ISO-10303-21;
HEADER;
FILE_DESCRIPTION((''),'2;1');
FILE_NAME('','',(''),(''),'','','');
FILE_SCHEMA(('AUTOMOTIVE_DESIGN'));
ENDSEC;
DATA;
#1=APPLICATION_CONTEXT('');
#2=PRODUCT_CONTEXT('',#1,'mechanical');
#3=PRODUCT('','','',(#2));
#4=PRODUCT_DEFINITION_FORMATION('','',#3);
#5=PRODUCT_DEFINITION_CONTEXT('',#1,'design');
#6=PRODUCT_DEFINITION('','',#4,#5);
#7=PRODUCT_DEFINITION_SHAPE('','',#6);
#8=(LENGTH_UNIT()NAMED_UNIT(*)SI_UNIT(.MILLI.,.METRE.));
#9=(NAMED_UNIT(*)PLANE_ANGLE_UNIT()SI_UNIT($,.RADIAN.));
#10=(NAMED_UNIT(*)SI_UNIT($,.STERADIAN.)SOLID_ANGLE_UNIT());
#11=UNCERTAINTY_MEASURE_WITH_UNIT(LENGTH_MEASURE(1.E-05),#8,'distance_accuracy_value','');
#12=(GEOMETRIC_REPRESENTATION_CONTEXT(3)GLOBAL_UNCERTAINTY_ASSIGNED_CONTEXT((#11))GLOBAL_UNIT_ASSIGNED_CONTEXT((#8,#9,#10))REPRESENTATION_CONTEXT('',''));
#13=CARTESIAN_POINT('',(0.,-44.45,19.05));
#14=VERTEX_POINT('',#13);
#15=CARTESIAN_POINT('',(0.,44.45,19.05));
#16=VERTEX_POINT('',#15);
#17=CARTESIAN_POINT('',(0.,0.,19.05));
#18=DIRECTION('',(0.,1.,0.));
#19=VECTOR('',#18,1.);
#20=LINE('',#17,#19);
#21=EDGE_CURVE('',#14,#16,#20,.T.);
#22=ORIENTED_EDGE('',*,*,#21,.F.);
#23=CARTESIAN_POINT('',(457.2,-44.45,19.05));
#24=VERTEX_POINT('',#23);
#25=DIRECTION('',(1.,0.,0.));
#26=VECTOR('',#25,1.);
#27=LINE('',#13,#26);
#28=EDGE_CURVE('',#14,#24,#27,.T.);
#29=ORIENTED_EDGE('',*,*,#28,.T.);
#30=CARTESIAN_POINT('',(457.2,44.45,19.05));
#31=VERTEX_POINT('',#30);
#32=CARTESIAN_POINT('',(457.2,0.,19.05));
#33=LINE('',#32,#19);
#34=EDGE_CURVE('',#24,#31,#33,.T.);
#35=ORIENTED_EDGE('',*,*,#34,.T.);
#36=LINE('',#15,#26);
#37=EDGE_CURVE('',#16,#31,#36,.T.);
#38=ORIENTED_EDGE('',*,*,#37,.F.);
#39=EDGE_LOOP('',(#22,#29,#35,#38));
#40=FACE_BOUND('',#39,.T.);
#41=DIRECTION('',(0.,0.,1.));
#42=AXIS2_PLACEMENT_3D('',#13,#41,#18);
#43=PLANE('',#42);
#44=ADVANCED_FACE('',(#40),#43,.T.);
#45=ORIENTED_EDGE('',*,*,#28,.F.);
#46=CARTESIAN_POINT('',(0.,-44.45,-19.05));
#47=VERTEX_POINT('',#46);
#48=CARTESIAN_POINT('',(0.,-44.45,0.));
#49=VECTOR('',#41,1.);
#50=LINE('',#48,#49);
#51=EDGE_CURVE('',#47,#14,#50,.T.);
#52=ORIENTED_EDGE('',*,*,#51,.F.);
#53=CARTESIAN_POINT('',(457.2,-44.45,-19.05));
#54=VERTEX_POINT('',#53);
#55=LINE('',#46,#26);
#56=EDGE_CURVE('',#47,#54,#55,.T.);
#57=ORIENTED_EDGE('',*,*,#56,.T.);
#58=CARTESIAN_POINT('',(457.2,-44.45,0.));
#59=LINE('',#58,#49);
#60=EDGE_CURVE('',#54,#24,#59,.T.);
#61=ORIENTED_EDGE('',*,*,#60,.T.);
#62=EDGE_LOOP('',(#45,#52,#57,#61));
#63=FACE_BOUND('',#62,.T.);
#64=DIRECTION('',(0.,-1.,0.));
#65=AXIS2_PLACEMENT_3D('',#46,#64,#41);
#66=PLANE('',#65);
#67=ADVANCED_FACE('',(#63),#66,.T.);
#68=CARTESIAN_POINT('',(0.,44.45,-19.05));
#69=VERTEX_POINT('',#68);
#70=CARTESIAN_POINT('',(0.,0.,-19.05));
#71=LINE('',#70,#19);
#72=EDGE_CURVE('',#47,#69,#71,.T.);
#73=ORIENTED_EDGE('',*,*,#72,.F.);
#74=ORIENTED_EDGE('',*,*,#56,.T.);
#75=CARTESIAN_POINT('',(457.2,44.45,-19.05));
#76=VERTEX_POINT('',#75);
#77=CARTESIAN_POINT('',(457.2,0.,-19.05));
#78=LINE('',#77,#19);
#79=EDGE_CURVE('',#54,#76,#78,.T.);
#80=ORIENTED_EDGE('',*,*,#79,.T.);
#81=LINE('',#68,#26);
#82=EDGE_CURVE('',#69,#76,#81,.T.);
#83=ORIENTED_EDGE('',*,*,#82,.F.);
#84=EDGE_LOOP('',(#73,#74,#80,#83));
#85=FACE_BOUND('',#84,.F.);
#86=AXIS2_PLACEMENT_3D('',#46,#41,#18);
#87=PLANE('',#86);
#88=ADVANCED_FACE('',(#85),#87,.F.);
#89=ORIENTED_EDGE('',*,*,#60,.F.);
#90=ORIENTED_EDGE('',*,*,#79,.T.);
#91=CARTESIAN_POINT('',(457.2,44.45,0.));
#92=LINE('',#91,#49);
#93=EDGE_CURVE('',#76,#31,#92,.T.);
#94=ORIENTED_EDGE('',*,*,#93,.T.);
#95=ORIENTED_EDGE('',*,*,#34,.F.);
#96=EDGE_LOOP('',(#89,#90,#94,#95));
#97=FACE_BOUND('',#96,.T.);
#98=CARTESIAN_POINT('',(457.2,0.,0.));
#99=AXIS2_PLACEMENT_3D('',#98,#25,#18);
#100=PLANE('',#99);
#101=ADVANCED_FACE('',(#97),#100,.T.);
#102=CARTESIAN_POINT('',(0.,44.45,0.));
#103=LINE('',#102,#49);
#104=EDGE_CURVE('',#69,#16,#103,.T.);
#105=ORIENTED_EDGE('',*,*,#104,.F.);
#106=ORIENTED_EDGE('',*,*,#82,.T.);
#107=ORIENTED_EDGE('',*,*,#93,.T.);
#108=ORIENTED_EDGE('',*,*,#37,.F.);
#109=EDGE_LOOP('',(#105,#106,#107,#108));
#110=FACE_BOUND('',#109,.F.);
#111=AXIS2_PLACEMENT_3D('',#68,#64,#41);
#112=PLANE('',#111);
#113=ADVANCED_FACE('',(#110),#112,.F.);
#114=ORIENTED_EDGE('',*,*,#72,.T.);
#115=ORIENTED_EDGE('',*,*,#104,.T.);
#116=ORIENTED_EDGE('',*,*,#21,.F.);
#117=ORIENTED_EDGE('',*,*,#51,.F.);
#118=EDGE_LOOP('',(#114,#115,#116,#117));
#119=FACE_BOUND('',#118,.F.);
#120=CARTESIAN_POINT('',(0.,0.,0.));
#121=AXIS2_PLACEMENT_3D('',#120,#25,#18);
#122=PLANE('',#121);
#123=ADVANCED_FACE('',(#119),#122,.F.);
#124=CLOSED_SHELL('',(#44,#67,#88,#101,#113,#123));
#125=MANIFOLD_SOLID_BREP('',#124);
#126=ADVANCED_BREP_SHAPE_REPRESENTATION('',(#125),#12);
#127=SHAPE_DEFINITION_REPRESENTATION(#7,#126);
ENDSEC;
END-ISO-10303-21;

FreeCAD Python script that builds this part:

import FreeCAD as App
import Part
import Sketcher
Q = App.Units.Quantity


def add_polygon(sketch, points):
    """Adds a closed chain of lines whose ends are joined by coincident constraints."""
    first, n = sketch.GeometryCount, len(points)
    for a, b in zip(points, points[1:] + points[:1]):
        sketch.addGeometry(Part.LineSegment(App.Vector(*a, 0), App.Vector(*b, 0)), False)
    for i in range(n):
        sketch.addConstraint(Sketcher.Constraint("Coincident", first + i, 2, first + (i + 1) % n, 1))

doc = App.newDocument("Part")
params = doc.addObject("Spreadsheet::Sheet", "Params")
for row, (alias, value) in enumerate([
    ("sketch1_width", "3.5 in"),
    ("sketch1_height", "1.5 in"),
    ("pad1_length", "18 in"),
], start=1):
    params.set(f"A{row}", alias)
    params.set(f"B{row}", "=" + value)
    params.setAlias(f"B{row}", alias)

body = doc.addObject("PartDesign::Body", "Body")

sketch1 = body.newObject("Sketcher::SketchObject", "Sketch")
sketch1.AttachmentSupport = (doc.getObject("YZ_Plane"), [""])
sketch1.MapMode = "FlatFace"
add_polygon(sketch1, [(-44, 19), (-44, -19), (44, -19), (44, 19)])
sketch1.addConstraint(Sketcher.Constraint("Vertical", 0))
sketch1.addConstraint(Sketcher.Constraint("Horizontal", 1))
sketch1.addConstraint(Sketcher.Constraint("Vertical", 2))
sketch1.addConstraint(Sketcher.Constraint("Horizontal", 3))
sketch1.addConstraint(Sketcher.Constraint("Symmetric", 0, 2, 2, 2, -1, 1))
sketch1.addConstraint(Sketcher.Constraint("DistanceX", 1, 1, 1, 2, Q("3.5 in")))
sketch1.addConstraint(Sketcher.Constraint("DistanceY", 0, 2, 0, 1, Q("1.5 in")))
sketch1.setExpression("Constraints[9]", "Params.sketch1_width")
sketch1.setExpression("Constraints[10]", "Params.sketch1_height")
pad1 = body.newObject("PartDesign::Pad", "Pad")
pad1.Profile = sketch1
pad1.setExpression("Length", "Params.pad1_length")

doc.recompute()
